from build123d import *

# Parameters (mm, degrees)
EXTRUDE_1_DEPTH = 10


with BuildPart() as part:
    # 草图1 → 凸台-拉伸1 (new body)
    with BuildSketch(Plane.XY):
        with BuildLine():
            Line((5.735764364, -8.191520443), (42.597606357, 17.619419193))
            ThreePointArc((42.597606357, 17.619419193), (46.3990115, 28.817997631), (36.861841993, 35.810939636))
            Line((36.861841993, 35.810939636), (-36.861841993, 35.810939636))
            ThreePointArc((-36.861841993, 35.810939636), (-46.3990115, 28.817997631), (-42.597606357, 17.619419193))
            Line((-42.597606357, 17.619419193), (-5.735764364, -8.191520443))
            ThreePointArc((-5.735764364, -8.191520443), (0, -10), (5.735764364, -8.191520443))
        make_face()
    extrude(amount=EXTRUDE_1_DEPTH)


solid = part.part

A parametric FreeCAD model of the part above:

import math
import FreeCAD as App
import Part
import Sketcher
from FreeCAD import Vector
Q = App.Units.Quantity

doc = App.newDocument("Part")
params = doc.addObject("Spreadsheet::Sheet", "Params")
for row, (alias, value) in enumerate([
    ("sketch1_radius", "10 mm"),
    ("sketch1_length", "45 mm"),
    ("pad1_length", "10 mm"),
], start=1):
    params.set(f"A{row}", alias)
    params.set(f"B{row}", "=" + value)
    params.setAlias(f"B{row}", alias)

body = doc.addObject("PartDesign::Body", "Body")

# Sketch on XY plane
sketch1 = body.newObject("Sketcher::SketchObject", "Sketch")
sketch1.AttachmentSupport = (doc.getObject("XY_Plane"), [""])
sketch1.MapMode = "FlatFace"
sketch1.addGeometry(Part.LineSegment(Vector(6, -8, 0), Vector(43, 18, 0)), False)
sketch1.addGeometry(Part.ArcOfCircle(Part.Circle(Vector(37, 26, 0), Vector(0, 0, 1), 10), math.radians(-55), math.radians(90)), False)
sketch1.addGeometry(Part.LineSegment(Vector(37, 36, 0), Vector(-37, 36, 0)), False)
sketch1.addGeometry(Part.ArcOfCircle(Part.Circle(Vector(-37, 26, 0), Vector(0, 0, 1), 10), math.radians(90), math.radians(235)), False)
sketch1.addGeometry(Part.LineSegment(Vector(-43, 18, 0), Vector(-6, -8, 0)), False)
sketch1.addGeometry(Part.ArcOfCircle(Part.Circle(Vector(0, 0, 0), Vector(0, 0, 1), 10), math.radians(-125), math.radians(-55)), False)
sketch1.addConstraint(Sketcher.Constraint("Tangent", 0, 2, 1, 1))
sketch1.addConstraint(Sketcher.Constraint("Tangent", 1, 2, 2, 1))
sketch1.addConstraint(Sketcher.Constraint("Tangent", 2, 2, 3, 1))
sketch1.addConstraint(Sketcher.Constraint("Tangent", 3, 2, 4, 1))
sketch1.addConstraint(Sketcher.Constraint("Tangent", 4, 2, 5, 1))
sketch1.addConstraint(Sketcher.Constraint("Tangent", 5, 2, 0, 1))
sketch1.addConstraint(Sketcher.Constraint("Horizontal", 2))
sketch1.addConstraint(Sketcher.Constraint("Coincident", 5, 3, -1, 1))
sketch1.addConstraint(Sketcher.Constraint("Equal", 1, 3))
sketch1.addConstraint(Sketcher.Constraint("Equal", 3, 5))
sketch1.addConstraint(Sketcher.Constraint("Horizontal", 0, 2, 3, 2))
sketch1.addConstraint(Sketcher.Constraint("Radius", 1, Q("10 mm")))
sketch1.addConstraint(Sketcher.Constraint("Angle", 0, Q("35 deg")))
sketch1.addConstraint(Sketcher.Constraint("Distance", 0, Q("45 mm")))
sketch1.setExpression("Constraints[11]", "Params.sketch1_radius")
sketch1.setExpression("Constraints[13]", "Params.sketch1_length")
pad1 = body.newObject("PartDesign::Pad", "Pad")
pad1.Profile = sketch1
pad1.setExpression("Length", "Params.pad1_length")

doc.recompute()
